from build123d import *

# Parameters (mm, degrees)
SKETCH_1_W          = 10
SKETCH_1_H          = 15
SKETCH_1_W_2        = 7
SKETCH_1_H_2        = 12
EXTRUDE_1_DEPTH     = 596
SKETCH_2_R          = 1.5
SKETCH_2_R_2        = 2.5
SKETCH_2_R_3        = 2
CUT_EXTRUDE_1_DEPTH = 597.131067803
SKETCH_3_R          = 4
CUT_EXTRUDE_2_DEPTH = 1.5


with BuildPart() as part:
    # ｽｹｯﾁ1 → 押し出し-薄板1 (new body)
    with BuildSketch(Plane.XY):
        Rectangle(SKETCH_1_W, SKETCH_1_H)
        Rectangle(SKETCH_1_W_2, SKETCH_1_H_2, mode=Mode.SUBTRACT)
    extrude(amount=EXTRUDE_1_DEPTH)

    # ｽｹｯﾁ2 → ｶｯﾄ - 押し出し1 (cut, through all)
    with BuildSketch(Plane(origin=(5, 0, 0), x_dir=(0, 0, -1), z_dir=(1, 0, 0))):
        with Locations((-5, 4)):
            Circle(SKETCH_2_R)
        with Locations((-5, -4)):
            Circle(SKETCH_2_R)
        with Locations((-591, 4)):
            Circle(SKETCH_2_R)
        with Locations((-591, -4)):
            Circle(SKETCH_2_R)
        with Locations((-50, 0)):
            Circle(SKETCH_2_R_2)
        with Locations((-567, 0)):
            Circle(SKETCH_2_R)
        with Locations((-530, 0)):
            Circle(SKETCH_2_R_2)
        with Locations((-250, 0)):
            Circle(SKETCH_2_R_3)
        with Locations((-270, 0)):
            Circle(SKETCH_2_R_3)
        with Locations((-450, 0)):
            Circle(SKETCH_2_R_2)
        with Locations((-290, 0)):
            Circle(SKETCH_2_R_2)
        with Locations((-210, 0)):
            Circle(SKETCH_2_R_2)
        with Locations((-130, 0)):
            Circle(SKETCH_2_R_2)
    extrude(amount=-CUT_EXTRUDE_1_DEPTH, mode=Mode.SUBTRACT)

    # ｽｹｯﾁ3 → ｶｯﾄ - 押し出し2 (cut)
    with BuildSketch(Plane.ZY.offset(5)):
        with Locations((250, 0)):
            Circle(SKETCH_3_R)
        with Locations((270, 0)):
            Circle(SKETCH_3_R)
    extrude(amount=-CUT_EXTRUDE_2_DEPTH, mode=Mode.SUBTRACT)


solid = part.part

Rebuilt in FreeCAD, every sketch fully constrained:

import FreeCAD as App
import Part
import Sketcher
Q = App.Units.Quantity


def add_polygon(sketch, points):
    """Adds a closed chain of lines whose ends are joined by coincident constraints."""
    first, n = sketch.GeometryCount, len(points)
    for a, b in zip(points, points[1:] + points[:1]):
        sketch.addGeometry(Part.LineSegment(App.Vector(*a, 0), App.Vector(*b, 0)), False)
    for i in range(n):
        sketch.addConstraint(Sketcher.Constraint("Coincident", first + i, 2, first + (i + 1) % n, 1))

doc = App.newDocument("Part")
body = doc.addObject("PartDesign::Body", "Body")

# Sketch on XY plane
sketch1 = doc.addObject("Sketcher::SketchObject", "Sketch")
body.addObject(sketch1)
sketch1.AttachmentSupport = (doc.XY_Plane, [""])
sketch1.MapMode = "FlatFace"
add_polygon(sketch1, [(-5, 8), (-5, -8), (5, -8), (5, 8)])  # lines 0-3
add_polygon(sketch1, [(4, -6), (-4, -6), (-4, 6), (4, 6)])  # lines 4-7
sketch1.addConstraint(Sketcher.Constraint("Vertical", 0))
sketch1.addConstraint(Sketcher.Constraint("Horizontal", 1))
sketch1.addConstraint(Sketcher.Constraint("Vertical", 2))
sketch1.addConstraint(Sketcher.Constraint("Horizontal", 3))
sketch1.addConstraint(Sketcher.Constraint("Horizontal", 4))
sketch1.addConstraint(Sketcher.Constraint("Vertical", 5))
sketch1.addConstraint(Sketcher.Constraint("Horizontal", 6))
sketch1.addConstraint(Sketcher.Constraint("Vertical", 7))
sketch1.addConstraint(Sketcher.Constraint("Symmetric", 0, 2, 2, 2, -1, 1))
sketch1.addConstraint(Sketcher.Constraint("Symmetric", 4, 2, 6, 2, -1, 1))
sketch1.addConstraint(Sketcher.Constraint("DistanceX", 1, 1, 1, 2, Q("10 mm")))
sketch1.addConstraint(Sketcher.Constraint("DistanceX", 4, 2, 4, 1, Q("7 mm")))
sketch1.addConstraint(Sketcher.Constraint("DistanceY", 0, 2, 0, 1, Q("15 mm")))
sketch1.addConstraint(Sketcher.Constraint("DistanceY", 5, 1, 5, 2, Q("12 mm")))
pad1 = doc.addObject("PartDesign::Pad", "Pad")
body.addObject(pad1)
pad1.Profile = sketch1
pad1.Length = 596

# Sketch on YZ plane
sketch2 = doc.addObject("Sketcher::SketchObject", "Sketch001")
body.addObject(sketch2)
sketch2.AttachmentSupport = (doc.YZ_Plane, [""])
sketch2.MapMode = "FlatFace"
sketch2.AttachmentOffset = App.Placement(App.Vector(0, 0, 5), App.Rotation())
sketch2.addGeometry(Part.Circle(App.Vector(4, 5, 0), App.Vector(0, 0, 1), 1.5), False)
sketch2.addGeometry(Part.Circle(App.Vector(-4, 5, 0), App.Vector(0, 0, 1), 1.5), False)
sketch2.addGeometry(Part.Circle(App.Vector(4, 591, 0), App.Vector(0, 0, 1), 1.5), False)
sketch2.addGeometry(Part.Circle(App.Vector(-4, 591, 0), App.Vector(0, 0, 1), 1.5), False)
sketch2.addGeometry(Part.Circle(App.Vector(0, 50, 0), App.Vector(0, 0, 1), 2.5), False)
sketch2.addGeometry(Part.Circle(App.Vector(0, 567, 0), App.Vector(0, 0, 1), 1.5), False)
sketch2.addGeometry(Part.Circle(App.Vector(0, 530, 0), App.Vector(0, 0, 1), 2.5), False)
sketch2.addGeometry(Part.Circle(App.Vector(0, 250, 0), App.Vector(0, 0, 1), 2), False)
sketch2.addGeometry(Part.Circle(App.Vector(0, 270, 0), App.Vector(0, 0, 1), 2), False)
sketch2.addGeometry(Part.Circle(App.Vector(0, 450, 0), App.Vector(0, 0, 1), 2.5), False)
sketch2.addGeometry(Part.Circle(App.Vector(0, 290, 0), App.Vector(0, 0, 1), 2.5), False)
sketch2.addGeometry(Part.Circle(App.Vector(0, 210, 0), App.Vector(0, 0, 1), 2.5), False)
sketch2.addGeometry(Part.Circle(App.Vector(0, 130, 0), App.Vector(0, 0, 1), 2.5), False)
sketch2.addConstraint(Sketcher.Constraint("Equal", 0, 1))
sketch2.addConstraint(Sketcher.Constraint("Equal", 1, 2))
sketch2.addConstraint(Sketcher.Constraint("Equal", 2, 3))
sketch2.addConstraint(Sketcher.Constraint("Equal", 3, 5))
sketch2.addConstraint(Sketcher.Constraint("Equal", 4, 6))
sketch2.addConstraint(Sketcher.Constraint("Equal", 7, 8))
sketch2.addConstraint(Sketcher.Constraint("Equal", 6, 9))
sketch2.addConstraint(Sketcher.Constraint("Equal", 9, 10))
sketch2.addConstraint(Sketcher.Constraint("Equal", 10, 11))
sketch2.addConstraint(Sketcher.Constraint("Equal", 11, 12))
sketch2.addConstraint(Sketcher.Constraint("Symmetric", 0, 3, 1, 3, -2))
sketch2.addConstraint(Sketcher.Constraint("Symmetric", 2, 3, 3, 3, -2))
sketch2.addConstraint(Sketcher.Constraint("PointOnObject", 4, 3, -2))
sketch2.addConstraint(Sketcher.Constraint("PointOnObject", 5, 3, -2))
sketch2.addConstraint(Sketcher.Constraint("PointOnObject", 6, 3, -2))
sketch2.addConstraint(Sketcher.Constraint("PointOnObject", 7, 3, -2))
sketch2.addConstraint(Sketcher.Constraint("PointOnObject", 8, 3, -2))
sketch2.addConstraint(Sketcher.Constraint("PointOnObject", 9, 3, -2))
sketch2.addConstraint(Sketcher.Constraint("PointOnObject", 10, 3, -2))
sketch2.addConstraint(Sketcher.Constraint("PointOnObject", 11, 3, -2))
sketch2.addConstraint(Sketcher.Constraint("PointOnObject", 12, 3, -2))
sketch2.addConstraint(Sketcher.Constraint("Vertical", 0, 3, 2, 3))
sketch2.addConstraint(Sketcher.Constraint("Diameter", 0, Q("3 mm")))
sketch2.addConstraint(Sketcher.Constraint("Diameter", 4, Q("5 mm")))
sketch2.addConstraint(Sketcher.Constraint("Diameter", 7, Q("4 mm")))
sketch2.addConstraint(Sketcher.Constraint("DistanceX", -1, 1, 0, 3, Q("4 mm")))
sketch2.addConstraint(Sketcher.Constraint("DistanceY", -1, 1, 0, 3, Q("5 mm")))
sketch2.addConstraint(Sketcher.Constraint("DistanceY", -1, 1, 2, 3, Q("591 mm")))
sketch2.addConstraint(Sketcher.Constraint("DistanceY", -1, 1, 4, 3, Q("50 mm")))
sketch2.addConstraint(Sketcher.Constraint("DistanceY", -1, 1, 5, 3, Q("567 mm")))
sketch2.addConstraint(Sketcher.Constraint("DistanceY", -1, 1, 6, 3, Q("530 mm")))
sketch2.addConstraint(Sketcher.Constraint("DistanceY", -1, 1, 7, 3, Q("250 mm")))
sketch2.addConstraint(Sketcher.Constraint("DistanceY", -1, 1, 8, 3, Q("270 mm")))
sketch2.addConstraint(Sketcher.Constraint("DistanceY", -1, 1, 9, 3, Q("450 mm")))
sketch2.addConstraint(Sketcher.Constraint("DistanceY", -1, 1, 10, 3, Q("290 mm")))
sketch2.addConstraint(Sketcher.Constraint("DistanceY", -1, 1, 11, 3, Q("210 mm")))
sketch2.addConstraint(Sketcher.Constraint("DistanceY", -1, 1, 12, 3, Q("130 mm")))
pocket1 = doc.addObject("PartDesign::Pocket", "Pocket")
body.addObject(pocket1)
pocket1.Profile = sketch2
pocket1.Type = "ThroughAll"

# Sketch on YZ plane
sketch3 = doc.addObject("Sketcher::SketchObject", "Sketch002")
body.addObject(sketch3)
sketch3.AttachmentSupport = (doc.YZ_Plane, [""])
sketch3.MapMode = "FlatFace"
sketch3.AttachmentOffset = App.Placement(App.Vector(0, 0, -5), App.Rotation())
sketch3.addGeometry(Part.Circle(App.Vector(0, 250, 0), App.Vector(0, 0, 1), 4), False)
sketch3.addGeometry(Part.Circle(App.Vector(0, 270, 0), App.Vector(0, 0, 1), 4), False)
sketch3.addConstraint(Sketcher.Constraint("Equal", 0, 1))
sketch3.addConstraint(Sketcher.Constraint("PointOnObject", 0, 3, -2))
sketch3.addConstraint(Sketcher.Constraint("PointOnObject", 1, 3, -2))
sketch3.addConstraint(Sketcher.Constraint("Diameter", 0, Q("8 mm")))
sketch3.addConstraint(Sketcher.Constraint("DistanceY", -1, 1, 0, 3, Q("250 mm")))
sketch3.addConstraint(Sketcher.Constraint("DistanceY", -1, 1, 1, 3, Q("270 mm")))
pocket2 = doc.addObject("PartDesign::Pocket", "Pocket001")
body.addObject(pocket2)
pocket2.Profile = sketch3
pocket2.Length = 1.5
pocket2.Reversed = True

doc.recompute()
